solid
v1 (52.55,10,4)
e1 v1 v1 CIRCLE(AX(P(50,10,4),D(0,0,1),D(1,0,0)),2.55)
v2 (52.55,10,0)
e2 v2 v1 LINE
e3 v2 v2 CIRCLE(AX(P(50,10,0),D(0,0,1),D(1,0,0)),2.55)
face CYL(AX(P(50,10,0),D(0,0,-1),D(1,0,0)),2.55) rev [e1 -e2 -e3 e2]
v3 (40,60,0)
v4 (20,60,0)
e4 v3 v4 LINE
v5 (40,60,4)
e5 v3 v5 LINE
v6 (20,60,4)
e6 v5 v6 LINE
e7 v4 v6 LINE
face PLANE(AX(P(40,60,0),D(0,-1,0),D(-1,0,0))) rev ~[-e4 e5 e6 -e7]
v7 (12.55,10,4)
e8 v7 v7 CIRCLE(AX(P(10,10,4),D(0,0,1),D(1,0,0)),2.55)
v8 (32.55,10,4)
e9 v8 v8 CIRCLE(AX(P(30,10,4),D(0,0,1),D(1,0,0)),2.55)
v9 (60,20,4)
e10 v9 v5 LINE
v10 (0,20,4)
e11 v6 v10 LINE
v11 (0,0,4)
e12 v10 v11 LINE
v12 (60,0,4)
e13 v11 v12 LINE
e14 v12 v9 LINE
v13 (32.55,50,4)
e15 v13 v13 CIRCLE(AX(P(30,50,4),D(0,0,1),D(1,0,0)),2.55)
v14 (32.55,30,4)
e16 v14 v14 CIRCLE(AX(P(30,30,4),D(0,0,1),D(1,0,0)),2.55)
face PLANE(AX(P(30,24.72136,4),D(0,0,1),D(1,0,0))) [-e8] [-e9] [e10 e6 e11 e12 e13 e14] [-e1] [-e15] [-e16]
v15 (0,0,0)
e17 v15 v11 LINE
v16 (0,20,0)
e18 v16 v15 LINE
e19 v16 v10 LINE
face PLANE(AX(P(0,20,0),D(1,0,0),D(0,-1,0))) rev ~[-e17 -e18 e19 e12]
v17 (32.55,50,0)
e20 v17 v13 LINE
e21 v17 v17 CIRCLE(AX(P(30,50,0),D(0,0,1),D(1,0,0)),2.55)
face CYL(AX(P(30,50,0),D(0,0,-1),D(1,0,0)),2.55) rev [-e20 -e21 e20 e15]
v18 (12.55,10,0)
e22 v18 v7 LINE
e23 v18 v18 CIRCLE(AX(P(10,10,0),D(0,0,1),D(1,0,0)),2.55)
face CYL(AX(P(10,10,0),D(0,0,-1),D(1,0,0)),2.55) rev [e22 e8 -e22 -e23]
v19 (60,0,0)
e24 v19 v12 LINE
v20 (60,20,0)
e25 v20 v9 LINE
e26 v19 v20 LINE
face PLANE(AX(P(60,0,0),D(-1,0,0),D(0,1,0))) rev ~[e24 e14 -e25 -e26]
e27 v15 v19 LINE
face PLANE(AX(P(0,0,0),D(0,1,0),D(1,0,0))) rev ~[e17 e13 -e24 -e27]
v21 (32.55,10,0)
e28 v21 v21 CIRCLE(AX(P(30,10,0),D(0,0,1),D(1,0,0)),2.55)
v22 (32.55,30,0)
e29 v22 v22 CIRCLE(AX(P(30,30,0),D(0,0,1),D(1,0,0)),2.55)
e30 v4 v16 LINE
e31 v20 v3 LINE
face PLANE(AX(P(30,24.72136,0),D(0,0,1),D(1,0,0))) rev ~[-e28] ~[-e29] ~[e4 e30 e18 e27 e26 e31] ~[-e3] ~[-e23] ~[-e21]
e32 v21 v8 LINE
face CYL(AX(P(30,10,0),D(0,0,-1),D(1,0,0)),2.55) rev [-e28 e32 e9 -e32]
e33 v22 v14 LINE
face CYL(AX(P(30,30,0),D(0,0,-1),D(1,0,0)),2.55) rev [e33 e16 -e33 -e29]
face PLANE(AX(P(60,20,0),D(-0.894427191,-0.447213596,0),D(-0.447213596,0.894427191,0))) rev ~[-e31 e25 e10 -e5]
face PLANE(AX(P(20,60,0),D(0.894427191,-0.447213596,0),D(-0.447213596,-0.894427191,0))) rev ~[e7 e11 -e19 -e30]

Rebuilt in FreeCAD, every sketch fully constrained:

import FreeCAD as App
import Part
import Sketcher
from FreeCAD import Vector
Q = App.Units.Quantity

doc = App.newDocument("Part")
body = doc.addObject("PartDesign::Body", "Body")

# Sketch on XY plane
sketch1 = doc.addObject("Sketcher::SketchObject", "Sketch")
body.addObject(sketch1)
sketch1.AttachmentSupport = (doc.XY_Plane, [""])
sketch1.MapMode = "FlatFace"
sketch1.addGeometry([
    Part.LineSegment(Vector(0, 0, 0), Vector(60, 0, 0)),  # 0
    Part.LineSegment(Vector(60, 0, 0), Vector(60, 20, 0)),  # 1
    Part.LineSegment(Vector(60, 20, 0), Vector(40, 60, 0)),  # 2
    Part.LineSegment(Vector(40, 60, 0), Vector(20, 60, 0)),  # 3
    Part.LineSegment(Vector(20, 60, 0), Vector(0, 20, 0)),  # 4
    Part.LineSegment(Vector(0, 20, 0), Vector(0, 0, 0)),  # 5
    Part.Circle(Vector(10, 10, 0), Vector(0, 0, 1), 2.5),  # 6
    Part.Circle(Vector(30, 10, 0), Vector(0, 0, 1), 2.5),  # 7
    Part.Circle(Vector(50, 10, 0), Vector(0, 0, 1), 2.5),  # 8
    Part.Circle(Vector(30, 30, 0), Vector(0, 0, 1), 2.5),  # 9
    Part.Circle(Vector(30, 50, 0), Vector(0, 0, 1), 2.5),  # 10
], False)
sketch1.addConstraint([
    Sketcher.Constraint("Coincident", 0, 2, 1, 1),
    Sketcher.Constraint("Coincident", 1, 2, 2, 1),
    Sketcher.Constraint("Coincident", 2, 2, 3, 1),
    Sketcher.Constraint("Coincident", 3, 2, 4, 1),
    Sketcher.Constraint("Coincident", 4, 2, 5, 1),
    Sketcher.Constraint("Coincident", 5, 2, 0, 1),
    Sketcher.Constraint("Horizontal", 0),
    Sketcher.Constraint("Vertical", 1),
    Sketcher.Constraint("Horizontal", 3),
    Sketcher.Constraint("Vertical", 5),
    Sketcher.Constraint("Coincident", 5, 2, -1, 1),
    Sketcher.Constraint("Equal", 6, 7),
    Sketcher.Constraint("Equal", 7, 8),
    Sketcher.Constraint("Equal", 8, 9),
    Sketcher.Constraint("Equal", 9, 10),
    Sketcher.Constraint("Horizontal", 6, 3, 7, 3),
    Sketcher.Constraint("Horizontal", 7, 3, 8, 3),
    Sketcher.Constraint("Horizontal", 1, 2, 4, 2),
    Sketcher.Constraint("Vertical", 7, 3, 9, 3),
    Sketcher.Constraint("Vertical", 9, 3, 10, 3),
    Sketcher.Constraint("Equal", 3, 1),
    Sketcher.Constraint("Equal", 2, 4),
    Sketcher.Constraint("Diameter", 6, Q("5.1 mm")),
    Sketcher.Constraint("DistanceX", 0, 1, 0, 2, Q("60 mm")),
    Sketcher.Constraint("DistanceX", 3, 2, 3, 1, Q("20 mm")),
    Sketcher.Constraint("DistanceX", -1, 1, 6, 3, Q("10 mm")),
    Sketcher.Constraint("DistanceY", -1, 1, 6, 3, Q("10 mm")),
    Sketcher.Constraint("DistanceX", -1, 1, 7, 3, Q("30 mm")),
    Sketcher.Constraint("DistanceX", -1, 1, 8, 3, Q("50 mm")),
    Sketcher.Constraint("DistanceY", -1, 1, 9, 3, Q("30 mm")),
    Sketcher.Constraint("DistanceY", -1, 1, 10, 3, Q("50 mm")),
    Sketcher.Constraint("DistanceY", -1, 1, 2, 2, Q("60 mm")),
])
pad1 = doc.addObject("PartDesign::Pad", "Pad")
body.addObject(pad1)
pad1.Profile = sketch1
pad1.Length = 4

doc.recompute()
